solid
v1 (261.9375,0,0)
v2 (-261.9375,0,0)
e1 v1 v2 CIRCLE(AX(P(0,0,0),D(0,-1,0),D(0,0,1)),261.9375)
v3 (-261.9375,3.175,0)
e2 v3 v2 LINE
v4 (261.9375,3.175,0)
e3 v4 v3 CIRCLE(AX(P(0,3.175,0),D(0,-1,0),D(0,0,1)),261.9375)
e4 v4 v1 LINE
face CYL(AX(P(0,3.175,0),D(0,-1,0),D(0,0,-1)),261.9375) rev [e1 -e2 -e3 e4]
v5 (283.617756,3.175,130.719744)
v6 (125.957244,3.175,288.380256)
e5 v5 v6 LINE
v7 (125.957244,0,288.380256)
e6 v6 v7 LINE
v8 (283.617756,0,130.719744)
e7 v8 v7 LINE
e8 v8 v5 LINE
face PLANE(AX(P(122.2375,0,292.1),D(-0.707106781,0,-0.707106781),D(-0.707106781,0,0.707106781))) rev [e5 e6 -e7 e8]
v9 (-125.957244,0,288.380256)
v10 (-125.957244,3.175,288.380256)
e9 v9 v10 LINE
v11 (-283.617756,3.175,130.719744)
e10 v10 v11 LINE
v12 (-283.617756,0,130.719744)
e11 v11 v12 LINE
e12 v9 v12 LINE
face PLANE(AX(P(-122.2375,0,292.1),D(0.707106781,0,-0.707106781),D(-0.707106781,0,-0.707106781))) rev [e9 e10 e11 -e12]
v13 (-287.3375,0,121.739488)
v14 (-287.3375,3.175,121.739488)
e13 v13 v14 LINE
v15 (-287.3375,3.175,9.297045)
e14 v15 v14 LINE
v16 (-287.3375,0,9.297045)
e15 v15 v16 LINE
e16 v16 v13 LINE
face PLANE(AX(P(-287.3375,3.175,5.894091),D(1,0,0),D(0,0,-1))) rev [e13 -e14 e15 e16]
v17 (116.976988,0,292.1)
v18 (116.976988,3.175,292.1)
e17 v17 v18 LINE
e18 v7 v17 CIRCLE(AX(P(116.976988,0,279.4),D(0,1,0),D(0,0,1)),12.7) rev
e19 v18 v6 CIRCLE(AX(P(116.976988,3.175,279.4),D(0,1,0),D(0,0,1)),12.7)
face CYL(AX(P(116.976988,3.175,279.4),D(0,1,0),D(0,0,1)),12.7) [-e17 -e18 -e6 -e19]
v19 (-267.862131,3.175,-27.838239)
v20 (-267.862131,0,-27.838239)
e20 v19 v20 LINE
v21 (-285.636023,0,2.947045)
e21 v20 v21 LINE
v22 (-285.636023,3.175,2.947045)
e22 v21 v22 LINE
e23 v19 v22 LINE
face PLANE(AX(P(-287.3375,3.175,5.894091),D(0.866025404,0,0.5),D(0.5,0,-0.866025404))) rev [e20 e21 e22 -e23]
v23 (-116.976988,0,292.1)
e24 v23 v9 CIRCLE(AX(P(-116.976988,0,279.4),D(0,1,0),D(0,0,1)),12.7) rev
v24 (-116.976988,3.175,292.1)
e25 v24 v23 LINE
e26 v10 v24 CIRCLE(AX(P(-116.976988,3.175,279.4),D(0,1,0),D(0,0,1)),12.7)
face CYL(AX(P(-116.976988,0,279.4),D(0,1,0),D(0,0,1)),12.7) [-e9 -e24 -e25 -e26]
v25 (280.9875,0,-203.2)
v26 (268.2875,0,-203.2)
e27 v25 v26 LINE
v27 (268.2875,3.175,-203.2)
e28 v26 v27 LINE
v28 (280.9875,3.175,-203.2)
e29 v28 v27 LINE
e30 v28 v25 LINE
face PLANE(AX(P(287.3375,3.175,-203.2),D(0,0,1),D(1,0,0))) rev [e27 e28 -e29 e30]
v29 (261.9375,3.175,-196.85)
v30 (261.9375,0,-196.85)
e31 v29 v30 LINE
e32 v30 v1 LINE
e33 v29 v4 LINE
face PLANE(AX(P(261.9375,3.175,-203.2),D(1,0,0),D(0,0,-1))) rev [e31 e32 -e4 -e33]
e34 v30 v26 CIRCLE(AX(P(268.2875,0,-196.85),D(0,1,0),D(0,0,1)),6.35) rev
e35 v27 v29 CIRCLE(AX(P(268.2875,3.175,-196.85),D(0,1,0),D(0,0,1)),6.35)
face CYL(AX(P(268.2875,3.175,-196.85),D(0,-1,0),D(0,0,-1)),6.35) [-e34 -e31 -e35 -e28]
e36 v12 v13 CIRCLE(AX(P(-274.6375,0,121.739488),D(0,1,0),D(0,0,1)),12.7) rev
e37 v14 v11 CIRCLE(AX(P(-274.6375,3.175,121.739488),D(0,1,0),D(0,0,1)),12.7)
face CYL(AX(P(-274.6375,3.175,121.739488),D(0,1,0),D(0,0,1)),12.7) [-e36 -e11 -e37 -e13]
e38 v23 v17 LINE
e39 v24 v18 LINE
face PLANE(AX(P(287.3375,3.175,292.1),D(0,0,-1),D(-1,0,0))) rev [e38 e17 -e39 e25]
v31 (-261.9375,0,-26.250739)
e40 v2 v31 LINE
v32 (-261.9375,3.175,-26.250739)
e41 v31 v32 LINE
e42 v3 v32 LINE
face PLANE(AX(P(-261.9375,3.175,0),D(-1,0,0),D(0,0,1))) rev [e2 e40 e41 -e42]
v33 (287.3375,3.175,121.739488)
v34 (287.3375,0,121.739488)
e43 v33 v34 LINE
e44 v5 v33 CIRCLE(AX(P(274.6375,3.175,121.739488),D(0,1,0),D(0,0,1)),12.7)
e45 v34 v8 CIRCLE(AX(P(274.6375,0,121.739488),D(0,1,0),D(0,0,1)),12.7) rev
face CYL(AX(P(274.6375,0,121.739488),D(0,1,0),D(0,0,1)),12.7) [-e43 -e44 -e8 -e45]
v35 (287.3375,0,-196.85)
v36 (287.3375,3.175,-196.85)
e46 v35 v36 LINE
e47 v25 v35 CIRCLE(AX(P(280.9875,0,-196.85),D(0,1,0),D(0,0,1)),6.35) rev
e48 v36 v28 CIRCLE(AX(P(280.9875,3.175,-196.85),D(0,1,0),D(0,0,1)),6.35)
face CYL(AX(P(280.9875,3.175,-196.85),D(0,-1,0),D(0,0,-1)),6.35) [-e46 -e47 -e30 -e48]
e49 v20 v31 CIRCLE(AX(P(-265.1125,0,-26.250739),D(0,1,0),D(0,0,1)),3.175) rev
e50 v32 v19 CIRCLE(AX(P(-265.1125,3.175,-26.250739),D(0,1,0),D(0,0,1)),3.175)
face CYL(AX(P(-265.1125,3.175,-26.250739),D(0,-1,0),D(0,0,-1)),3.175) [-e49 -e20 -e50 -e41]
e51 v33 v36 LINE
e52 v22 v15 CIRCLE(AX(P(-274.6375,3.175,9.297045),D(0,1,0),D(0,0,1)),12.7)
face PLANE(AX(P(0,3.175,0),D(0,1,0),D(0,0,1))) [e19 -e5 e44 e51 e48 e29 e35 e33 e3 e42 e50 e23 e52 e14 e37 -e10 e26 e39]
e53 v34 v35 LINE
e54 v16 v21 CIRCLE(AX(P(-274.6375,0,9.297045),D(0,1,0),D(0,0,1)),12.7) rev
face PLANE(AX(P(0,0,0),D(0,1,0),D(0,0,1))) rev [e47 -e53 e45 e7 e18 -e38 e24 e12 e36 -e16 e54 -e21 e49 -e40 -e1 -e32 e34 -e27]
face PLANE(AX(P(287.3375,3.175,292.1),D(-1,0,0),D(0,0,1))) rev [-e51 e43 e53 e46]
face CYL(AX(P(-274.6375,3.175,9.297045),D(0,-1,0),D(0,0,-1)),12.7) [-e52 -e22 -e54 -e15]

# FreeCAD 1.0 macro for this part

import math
import FreeCAD as App
import Part
import Sketcher
Q = App.Units.Quantity


def edges_at(feature, points):
    """Names of the edges that pass closest to the given points."""
    edges = feature.Shape.Edges
    near = lambda p: min(range(len(edges)), key=lambda i: edges[i].distToShape(Part.Vertex(*p))[0])
    return sorted({f"Edge{near(p) + 1}" for p in points})

doc = App.newDocument("Part")
body = doc.addObject("PartDesign::Body", "Body")

# Sketch on XZ plane
sketch1 = body.newObject("Sketcher::SketchObject", "Sketch")
sketch1.AttachmentSupport = (doc.getObject("XZ_Plane"), [""])
sketch1.MapMode = "FlatFace"
sketch1.addGeometry([
    Part.LineSegment(App.Vector(-287, 6, 0), App.Vector(-287, 292, 0)),  # 0
    Part.LineSegment(App.Vector(-287, 292, 0), App.Vector(287, 292, 0)),  # 1
    Part.LineSegment(App.Vector(287, 292, 0), App.Vector(287, -203, 0)),  # 2
    Part.LineSegment(App.Vector(287, -203, 0), App.Vector(262, -203, 0)),  # 3
    Part.LineSegment(App.Vector(262, -203, 0), App.Vector(262, 0, 0)),  # 4
    Part.ArcOfCircle(Part.Circle(App.Vector(0, 0, 0), App.Vector(0, 0, 1), 262), math.radians(0), math.radians(180)),  # 5
    Part.LineSegment(App.Vector(-262, 0, 0), App.Vector(-262, -38, 0)),  # 6
    Part.LineSegment(App.Vector(-262, -38, 0), App.Vector(-287, 6, 0)),  # 7
], False)
sketch1.addConstraint([
    Sketcher.Constraint("Coincident", 0, 2, 1, 1),
    Sketcher.Constraint("Coincident", 1, 2, 2, 1),
    Sketcher.Constraint("Coincident", 2, 2, 3, 1),
    Sketcher.Constraint("Coincident", 3, 2, 4, 1),
    Sketcher.Constraint("Tangent", 4, 2, 5, 1),
    Sketcher.Constraint("Tangent", 5, 2, 6, 1),
    Sketcher.Constraint("Coincident", 6, 2, 7, 1),
    Sketcher.Constraint("Coincident", 7, 2, 0, 1),
    Sketcher.Constraint("Vertical", 0),
    Sketcher.Constraint("Horizontal", 1),
    Sketcher.Constraint("Vertical", 2),
    Sketcher.Constraint("Horizontal", 3),
    Sketcher.Constraint("Vertical", 4),
    Sketcher.Constraint("Vertical", 6),
    Sketcher.Constraint("Coincident", 5, 3, -1, 1),
    Sketcher.Constraint("DistanceX", 3, 2, 3, 1, Q("1 in")),
    Sketcher.Constraint("DistanceY", 4, 1, 4, 2, Q("8 in")),
    Sketcher.Constraint("Distance", 7, Q("2 in")),
    Sketcher.Constraint("DistanceY", 2, 2, 2, 1, Q("19.5 in")),
    Sketcher.Constraint("DistanceY", 6, 2, 6, 1, Q("1.5 in")),
    Sketcher.Constraint("Angle", 7, Q("120 deg")),
    Sketcher.Constraint("Radius", 5, Q("10.3125 in")),
])
pad1 = body.newObject("PartDesign::Pad", "Pad")
pad1.Profile = sketch1
pad1.Length = Q("0.125 in")
pad1.Reversed = True
doc.recompute()

fillet = body.newObject("PartDesign::Fillet", "Fillet")
fillet.Base = (pad1, edges_at(pad1, [(-261.938, 1.587, -38.1)]))
fillet.Radius = Q("0.125 in")

# Sketch on XZ plane
sketch2 = body.newObject("Sketcher::SketchObject", "Sketch001")
sketch2.AttachmentSupport = (doc.getObject("XZ_Plane"), [""])
sketch2.MapMode = "FlatFace"
sketch2.AttachmentOffset = App.Placement(App.Vector(0, 0, -0.125 * 25.4), App.Rotation())
sketch2.addGeometry([
    Part.LineSegment(App.Vector(122, 292, 0), App.Vector(287, 292, 0)),  # 0
    Part.LineSegment(App.Vector(287, 292, 0), App.Vector(287, 127, 0)),  # 1
    Part.LineSegment(App.Vector(287, 127, 0), App.Vector(122, 292, 0)),  # 2
    Part.LineSegment(App.Vector(-287, 292, 0), App.Vector(-122, 292, 0)),  # 3
    Part.LineSegment(App.Vector(-122, 292, 0), App.Vector(-287, 127, 0)),  # 4
    Part.LineSegment(App.Vector(-287, 127, 0), App.Vector(-287, 292, 0)),  # 5
], False)
sketch2.addConstraint([
    Sketcher.Constraint("Coincident", 0, 2, 1, 1),
    Sketcher.Constraint("Coincident", 1, 2, 2, 1),
    Sketcher.Constraint("Coincident", 2, 2, 0, 1),
    Sketcher.Constraint("Coincident", 3, 2, 4, 1),
    Sketcher.Constraint("Coincident", 4, 2, 5, 1),
    Sketcher.Constraint("Coincident", 5, 2, 3, 1),
    Sketcher.Constraint("Horizontal", 0),
    Sketcher.Constraint("Vertical", 1),
    Sketcher.Constraint("Horizontal", 3),
    Sketcher.Constraint("Vertical", 5),
    Sketcher.Constraint("Symmetric", 2, 2, 3, 2, -2),
    Sketcher.Constraint("Symmetric", 1, 2, 4, 2, -2),
    Sketcher.Constraint("Perpendicular", 2, 4),
    Sketcher.Constraint("DistanceX", 0, 1, 0, 2, Q("6.5 in")),
    Sketcher.Constraint("DistanceY", -1, 1, 1, 2, Q("5 in")),
    Sketcher.Constraint("DistanceX", -1, 1, 0, 2, Q("11.3125 in")),
])
pocket1 = body.newObject("PartDesign::Pocket", "Pocket")
pocket1.Profile = sketch2
pocket1.Type = "ThroughAll"
pocket1.Reversed = True
doc.recompute()

fillet2 = body.newObject("PartDesign::Fillet", "Fillet001")
fillet2.Base = (pocket1, edges_at(pocket1, [
    (-287.337, 1.587, 5.894),
    (287.337, 1.587, 127),
    (122.237, 1.587, 292.1),
    (-287.337, 1.587, 127),
    (-122.237, 1.587, 292.1),
]))
fillet2.Radius = Q("0.5 in")
doc.recompute()

fillet3 = body.newObject("PartDesign::Fillet", "Fillet002")
fillet3.Base = (fillet2, edges_at(fillet2, [(261.938, 1.587, -203.2), (287.337, 1.587, -203.2)]))
fillet3.Radius = Q("0.25 in")

doc.recompute()
